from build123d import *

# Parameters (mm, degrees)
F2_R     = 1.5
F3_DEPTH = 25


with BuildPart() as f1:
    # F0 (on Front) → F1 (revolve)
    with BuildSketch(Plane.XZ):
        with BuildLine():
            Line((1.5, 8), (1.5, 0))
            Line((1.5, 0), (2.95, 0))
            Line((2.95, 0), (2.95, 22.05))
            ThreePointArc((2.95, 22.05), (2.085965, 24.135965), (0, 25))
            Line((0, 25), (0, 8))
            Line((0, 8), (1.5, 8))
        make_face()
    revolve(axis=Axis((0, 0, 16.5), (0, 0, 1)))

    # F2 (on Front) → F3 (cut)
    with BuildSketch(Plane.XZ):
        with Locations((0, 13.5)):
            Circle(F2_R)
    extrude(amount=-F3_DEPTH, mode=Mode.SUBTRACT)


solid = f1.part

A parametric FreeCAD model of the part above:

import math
import FreeCAD as App
import Part
import Sketcher
from FreeCAD import Vector
Q = App.Units.Quantity

doc = App.newDocument("Part")
body = doc.addObject("PartDesign::Body", "Body")

# Sketch on XZ plane
sketch1 = body.newObject("Sketcher::SketchObject", "Sketch")
sketch1.AttachmentSupport = (doc.getObject("XZ_Plane"), [""])
sketch1.MapMode = "FlatFace"
sketch1.addGeometry([
    Part.LineSegment(Vector(1.5, 8, 0), Vector(1.5, 0, 0)),  # 0
    Part.LineSegment(Vector(1.5, 0, 0), Vector(3, 0, 0)),  # 1
    Part.LineSegment(Vector(3, 0, 0), Vector(3, 22.1, 0)),  # 2
    Part.ArcOfCircle(Part.Circle(Vector(0, 22, 0), Vector(0, 0, 1), 3), math.radians(0), math.radians(90)),  # 3
    Part.LineSegment(Vector(0, 25, 0), Vector(0, 8, 0)),  # 4
    Part.LineSegment(Vector(0, 8, 0), Vector(1.5, 8, 0)),  # 5
], False)
sketch1.addConstraint([
    Sketcher.Constraint("Coincident", 0, 2, 1, 1),
    Sketcher.Constraint("Coincident", 1, 2, 2, 1),
    Sketcher.Constraint("Tangent", 2, 2, 3, 1),
    Sketcher.Constraint("Coincident", 3, 2, 4, 1),
    Sketcher.Constraint("Coincident", 4, 2, 5, 1),
    Sketcher.Constraint("Coincident", 5, 2, 0, 1),
    Sketcher.Constraint("Vertical", 0),
    Sketcher.Constraint("Horizontal", 1),
    Sketcher.Constraint("Vertical", 2),
    Sketcher.Constraint("Vertical", 4),
    Sketcher.Constraint("Horizontal", 5),
    Sketcher.Constraint("PointOnObject", 3, 3, -2),
    Sketcher.Constraint("PointOnObject", 0, 2, -1),
    Sketcher.Constraint("PointOnObject", 3, 2, -2),
    Sketcher.Constraint("DistanceY", 0, 2, 0, 1, Q("8 mm")),
    Sketcher.Constraint("DistanceY", 4, 2, 4, 1, Q("17 mm")),
    Sketcher.Constraint("Radius", 3, Q("2.95 mm")),
    Sketcher.Constraint("DistanceX", 5, 1, 5, 2, Q("1.5 mm")),
])
revolution = body.newObject("PartDesign::Revolution", "Revolution")
revolution.Profile = sketch1
revolution.ReferenceAxis = (sketch1, ["V_Axis"])
revolution.Angle = 360

# Sketch on XZ plane
sketch2 = body.newObject("Sketcher::SketchObject", "Sketch001")
sketch2.AttachmentSupport = (doc.getObject("XZ_Plane"), [""])
sketch2.MapMode = "FlatFace"
sketch2.addGeometry(Part.Circle(Vector(0, 13.5, 0), Vector(0, 0, 1), 1.5), False)
sketch2.addConstraint([
    Sketcher.Constraint("PointOnObject", 0, 3, -2),
    Sketcher.Constraint("Diameter", 0, Q("3 mm")),
    Sketcher.Constraint("DistanceY", -1, 1, 0, 3, Q("13.5 mm")),
])
pocket1 = body.newObject("PartDesign::Pocket", "Pocket")
pocket1.Profile = sketch2
pocket1.Length = 25

doc.recompute()
